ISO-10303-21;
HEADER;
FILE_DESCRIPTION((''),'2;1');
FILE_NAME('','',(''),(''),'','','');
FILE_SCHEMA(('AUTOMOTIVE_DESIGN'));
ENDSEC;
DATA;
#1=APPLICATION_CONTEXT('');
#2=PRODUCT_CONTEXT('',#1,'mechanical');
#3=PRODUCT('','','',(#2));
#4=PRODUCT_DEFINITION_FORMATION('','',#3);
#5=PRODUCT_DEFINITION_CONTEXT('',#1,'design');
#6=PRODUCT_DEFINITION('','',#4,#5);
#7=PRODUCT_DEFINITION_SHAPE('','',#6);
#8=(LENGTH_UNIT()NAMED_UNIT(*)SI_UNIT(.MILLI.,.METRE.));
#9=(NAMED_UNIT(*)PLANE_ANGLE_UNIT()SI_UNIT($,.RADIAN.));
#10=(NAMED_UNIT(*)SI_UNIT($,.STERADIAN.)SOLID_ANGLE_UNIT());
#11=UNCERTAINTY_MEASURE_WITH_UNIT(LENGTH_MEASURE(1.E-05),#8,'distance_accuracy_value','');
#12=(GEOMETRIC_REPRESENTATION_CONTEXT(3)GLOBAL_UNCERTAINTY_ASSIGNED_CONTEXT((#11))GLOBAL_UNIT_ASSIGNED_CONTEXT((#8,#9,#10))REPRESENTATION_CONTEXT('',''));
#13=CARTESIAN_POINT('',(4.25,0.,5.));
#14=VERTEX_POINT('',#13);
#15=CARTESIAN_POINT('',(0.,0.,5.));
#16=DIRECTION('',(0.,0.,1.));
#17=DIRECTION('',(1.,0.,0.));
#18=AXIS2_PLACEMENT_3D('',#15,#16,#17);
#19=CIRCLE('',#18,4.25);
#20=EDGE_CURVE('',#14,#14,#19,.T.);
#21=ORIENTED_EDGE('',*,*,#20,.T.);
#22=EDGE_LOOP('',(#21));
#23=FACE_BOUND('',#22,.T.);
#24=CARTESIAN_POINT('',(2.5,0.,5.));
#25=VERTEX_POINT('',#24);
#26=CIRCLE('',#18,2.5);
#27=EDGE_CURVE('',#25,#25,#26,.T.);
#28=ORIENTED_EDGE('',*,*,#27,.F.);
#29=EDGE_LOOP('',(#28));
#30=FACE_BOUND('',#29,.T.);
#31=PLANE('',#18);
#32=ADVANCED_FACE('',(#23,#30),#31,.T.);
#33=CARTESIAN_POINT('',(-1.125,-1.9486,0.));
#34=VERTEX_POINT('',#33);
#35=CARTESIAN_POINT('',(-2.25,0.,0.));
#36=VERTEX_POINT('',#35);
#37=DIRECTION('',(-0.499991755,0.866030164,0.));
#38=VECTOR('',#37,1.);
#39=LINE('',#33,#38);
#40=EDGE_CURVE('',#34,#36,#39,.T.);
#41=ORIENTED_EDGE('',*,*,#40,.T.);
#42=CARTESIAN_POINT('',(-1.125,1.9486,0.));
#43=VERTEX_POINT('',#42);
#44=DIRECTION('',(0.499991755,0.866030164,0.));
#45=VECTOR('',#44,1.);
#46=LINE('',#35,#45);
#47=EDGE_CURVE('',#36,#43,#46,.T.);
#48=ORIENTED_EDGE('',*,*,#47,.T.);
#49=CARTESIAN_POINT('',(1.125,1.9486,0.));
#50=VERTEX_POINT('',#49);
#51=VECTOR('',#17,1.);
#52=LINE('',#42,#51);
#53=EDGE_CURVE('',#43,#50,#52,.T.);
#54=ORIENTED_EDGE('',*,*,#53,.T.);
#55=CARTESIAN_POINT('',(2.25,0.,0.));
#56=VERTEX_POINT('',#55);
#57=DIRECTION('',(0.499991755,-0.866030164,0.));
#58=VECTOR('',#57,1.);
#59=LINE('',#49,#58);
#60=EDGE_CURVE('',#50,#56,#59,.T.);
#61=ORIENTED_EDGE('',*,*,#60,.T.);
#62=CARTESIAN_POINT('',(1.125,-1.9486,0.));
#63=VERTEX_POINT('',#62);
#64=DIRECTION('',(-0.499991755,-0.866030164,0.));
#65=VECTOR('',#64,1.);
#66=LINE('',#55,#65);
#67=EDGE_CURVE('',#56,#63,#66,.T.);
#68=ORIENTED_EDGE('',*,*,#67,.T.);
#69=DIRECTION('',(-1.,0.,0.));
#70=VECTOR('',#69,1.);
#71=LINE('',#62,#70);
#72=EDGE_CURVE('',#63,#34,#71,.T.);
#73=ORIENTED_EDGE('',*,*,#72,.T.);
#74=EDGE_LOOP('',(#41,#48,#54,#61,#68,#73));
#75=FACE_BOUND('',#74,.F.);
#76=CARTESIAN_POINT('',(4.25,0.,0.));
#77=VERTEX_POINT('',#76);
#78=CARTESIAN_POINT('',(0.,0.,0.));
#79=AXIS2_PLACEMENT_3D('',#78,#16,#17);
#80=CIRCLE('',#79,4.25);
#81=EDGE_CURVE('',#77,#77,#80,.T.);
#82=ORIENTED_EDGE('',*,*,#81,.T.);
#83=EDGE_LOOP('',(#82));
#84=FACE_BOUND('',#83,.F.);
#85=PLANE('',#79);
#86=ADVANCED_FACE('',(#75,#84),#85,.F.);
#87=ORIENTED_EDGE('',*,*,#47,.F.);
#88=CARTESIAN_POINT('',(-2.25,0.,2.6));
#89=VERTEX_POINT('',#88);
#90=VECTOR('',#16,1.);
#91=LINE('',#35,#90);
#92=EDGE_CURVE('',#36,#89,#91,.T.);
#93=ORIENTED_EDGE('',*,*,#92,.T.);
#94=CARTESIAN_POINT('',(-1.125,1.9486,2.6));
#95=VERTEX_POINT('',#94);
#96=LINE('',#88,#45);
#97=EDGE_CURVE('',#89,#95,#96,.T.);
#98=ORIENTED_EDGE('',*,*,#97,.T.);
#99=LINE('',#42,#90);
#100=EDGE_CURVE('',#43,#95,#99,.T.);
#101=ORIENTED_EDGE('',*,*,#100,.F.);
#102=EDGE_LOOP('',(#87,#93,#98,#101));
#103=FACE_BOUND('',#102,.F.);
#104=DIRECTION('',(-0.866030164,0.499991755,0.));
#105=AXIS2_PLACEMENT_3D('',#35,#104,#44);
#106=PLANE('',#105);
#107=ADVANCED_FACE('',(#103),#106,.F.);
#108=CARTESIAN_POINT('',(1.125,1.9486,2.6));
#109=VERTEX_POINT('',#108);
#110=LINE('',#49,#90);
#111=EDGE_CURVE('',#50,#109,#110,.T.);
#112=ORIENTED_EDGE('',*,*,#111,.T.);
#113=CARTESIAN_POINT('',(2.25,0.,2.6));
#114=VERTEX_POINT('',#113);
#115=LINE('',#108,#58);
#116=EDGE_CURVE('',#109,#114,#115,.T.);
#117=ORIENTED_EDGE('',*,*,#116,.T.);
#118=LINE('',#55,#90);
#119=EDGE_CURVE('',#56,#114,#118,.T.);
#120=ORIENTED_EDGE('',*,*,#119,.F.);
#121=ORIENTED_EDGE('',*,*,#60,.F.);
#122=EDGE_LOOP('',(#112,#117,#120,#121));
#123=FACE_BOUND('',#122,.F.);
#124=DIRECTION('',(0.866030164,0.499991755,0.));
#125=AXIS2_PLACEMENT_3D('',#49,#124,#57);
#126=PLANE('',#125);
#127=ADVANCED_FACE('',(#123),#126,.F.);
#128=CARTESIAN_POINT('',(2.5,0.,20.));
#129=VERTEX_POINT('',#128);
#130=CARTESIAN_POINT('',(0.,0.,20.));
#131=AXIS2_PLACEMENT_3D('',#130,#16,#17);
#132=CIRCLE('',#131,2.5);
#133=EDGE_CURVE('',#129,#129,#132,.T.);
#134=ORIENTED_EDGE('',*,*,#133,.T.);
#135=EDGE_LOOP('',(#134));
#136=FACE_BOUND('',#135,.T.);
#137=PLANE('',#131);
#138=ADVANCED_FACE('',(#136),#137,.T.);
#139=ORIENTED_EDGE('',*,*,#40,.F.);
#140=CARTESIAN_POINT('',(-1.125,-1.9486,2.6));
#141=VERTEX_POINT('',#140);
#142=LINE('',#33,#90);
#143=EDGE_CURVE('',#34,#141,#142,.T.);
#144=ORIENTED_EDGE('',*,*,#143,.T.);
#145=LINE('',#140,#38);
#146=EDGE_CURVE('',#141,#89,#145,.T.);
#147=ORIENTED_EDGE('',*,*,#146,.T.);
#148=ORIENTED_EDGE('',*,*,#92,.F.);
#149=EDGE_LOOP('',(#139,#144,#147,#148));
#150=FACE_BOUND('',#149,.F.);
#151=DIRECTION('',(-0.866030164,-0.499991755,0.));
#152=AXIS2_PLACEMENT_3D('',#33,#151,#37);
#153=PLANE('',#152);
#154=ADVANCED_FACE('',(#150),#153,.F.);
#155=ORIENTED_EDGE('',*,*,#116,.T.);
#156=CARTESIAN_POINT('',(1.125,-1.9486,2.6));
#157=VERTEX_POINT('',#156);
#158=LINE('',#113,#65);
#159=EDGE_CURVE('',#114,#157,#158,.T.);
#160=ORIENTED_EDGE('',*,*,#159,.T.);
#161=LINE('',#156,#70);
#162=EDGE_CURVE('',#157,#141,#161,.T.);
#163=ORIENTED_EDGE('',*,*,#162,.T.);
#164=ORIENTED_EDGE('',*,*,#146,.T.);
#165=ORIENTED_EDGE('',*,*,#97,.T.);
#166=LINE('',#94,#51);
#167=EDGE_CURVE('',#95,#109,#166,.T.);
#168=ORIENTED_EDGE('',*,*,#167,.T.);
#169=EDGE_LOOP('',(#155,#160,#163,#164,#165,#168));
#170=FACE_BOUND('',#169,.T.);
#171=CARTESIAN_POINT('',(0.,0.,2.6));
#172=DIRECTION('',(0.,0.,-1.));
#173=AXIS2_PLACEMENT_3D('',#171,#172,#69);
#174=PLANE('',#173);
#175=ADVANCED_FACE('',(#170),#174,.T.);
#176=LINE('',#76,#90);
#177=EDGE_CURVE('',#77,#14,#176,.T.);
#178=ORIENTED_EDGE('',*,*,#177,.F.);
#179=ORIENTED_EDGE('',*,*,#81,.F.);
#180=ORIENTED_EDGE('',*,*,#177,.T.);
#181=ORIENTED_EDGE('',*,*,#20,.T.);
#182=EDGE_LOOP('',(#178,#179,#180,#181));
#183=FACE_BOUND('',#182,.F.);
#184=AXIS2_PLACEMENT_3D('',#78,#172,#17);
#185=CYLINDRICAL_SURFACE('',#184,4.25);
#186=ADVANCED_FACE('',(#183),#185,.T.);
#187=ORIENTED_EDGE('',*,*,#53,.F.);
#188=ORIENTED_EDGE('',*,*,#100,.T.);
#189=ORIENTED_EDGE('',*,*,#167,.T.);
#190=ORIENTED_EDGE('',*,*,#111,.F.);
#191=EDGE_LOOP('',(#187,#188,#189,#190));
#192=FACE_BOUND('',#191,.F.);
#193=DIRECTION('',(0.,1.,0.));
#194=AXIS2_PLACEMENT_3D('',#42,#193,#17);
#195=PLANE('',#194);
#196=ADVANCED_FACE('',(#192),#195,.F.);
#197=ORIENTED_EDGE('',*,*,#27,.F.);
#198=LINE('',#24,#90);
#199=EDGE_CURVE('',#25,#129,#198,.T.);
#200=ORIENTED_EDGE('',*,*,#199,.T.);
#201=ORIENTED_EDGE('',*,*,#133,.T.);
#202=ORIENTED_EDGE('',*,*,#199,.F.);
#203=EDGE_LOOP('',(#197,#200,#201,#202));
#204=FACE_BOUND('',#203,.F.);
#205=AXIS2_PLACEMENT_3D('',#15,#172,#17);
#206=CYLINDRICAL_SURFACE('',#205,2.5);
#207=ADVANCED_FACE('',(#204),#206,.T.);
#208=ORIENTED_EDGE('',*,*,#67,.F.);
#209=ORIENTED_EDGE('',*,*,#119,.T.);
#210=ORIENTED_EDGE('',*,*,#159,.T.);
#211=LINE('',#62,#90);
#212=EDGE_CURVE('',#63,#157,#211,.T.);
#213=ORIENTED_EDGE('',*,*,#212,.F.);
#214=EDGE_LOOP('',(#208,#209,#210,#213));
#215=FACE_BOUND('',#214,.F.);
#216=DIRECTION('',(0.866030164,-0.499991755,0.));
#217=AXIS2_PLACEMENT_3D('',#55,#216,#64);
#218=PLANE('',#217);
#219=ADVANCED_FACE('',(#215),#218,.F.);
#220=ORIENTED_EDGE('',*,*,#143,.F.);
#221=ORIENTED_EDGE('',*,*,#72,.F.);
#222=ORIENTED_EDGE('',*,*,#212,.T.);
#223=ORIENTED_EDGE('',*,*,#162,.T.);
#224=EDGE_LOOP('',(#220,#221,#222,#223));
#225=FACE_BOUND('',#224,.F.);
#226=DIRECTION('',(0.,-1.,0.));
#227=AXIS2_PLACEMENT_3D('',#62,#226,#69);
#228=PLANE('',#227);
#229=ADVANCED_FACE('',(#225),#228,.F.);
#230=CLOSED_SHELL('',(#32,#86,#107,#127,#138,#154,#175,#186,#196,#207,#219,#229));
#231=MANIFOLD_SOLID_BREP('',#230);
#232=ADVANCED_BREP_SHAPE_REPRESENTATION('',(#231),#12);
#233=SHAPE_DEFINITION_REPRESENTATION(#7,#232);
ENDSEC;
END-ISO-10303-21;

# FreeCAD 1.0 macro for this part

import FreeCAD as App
import Part
import Sketcher
from FreeCAD import Vector
Q = App.Units.Quantity


def add_polygon(sketch, points):
    """Adds a closed chain of lines whose ends are joined by coincident constraints."""
    first, n = sketch.GeometryCount, len(points)
    for a, b in zip(points, points[1:] + points[:1]):
        sketch.addGeometry(Part.LineSegment(App.Vector(*a, 0), App.Vector(*b, 0)), False)
    for i in range(n):
        sketch.addConstraint(Sketcher.Constraint("Coincident", first + i, 2, first + (i + 1) % n, 1))

doc = App.newDocument("Part")
params = doc.addObject("Spreadsheet::Sheet", "Params")
for row, (alias, value) in enumerate([
    ("sketch1_diameter", "8.5 mm"),
    ("pad1_length", "5 mm"),
    ("sketch2_diameter", "5 mm"),
    ("pad2_length", "15 mm"),
    ("sketch3_width", "2.25 mm"),
    ("pocket1_length", "2.6 mm"),
], start=1):
    params.set(f"A{row}", alias)
    params.set(f"B{row}", "=" + value)
    params.setAlias(f"B{row}", alias)

body = doc.addObject("PartDesign::Body", "Body")

sketch1 = body.newObject("Sketcher::SketchObject", "Sketch")
sketch1.AttachmentSupport = (doc.getObject("XY_Plane"), [""])
sketch1.MapMode = "FlatFace"
sketch1.addGeometry(Part.Circle(Vector(0, 0, 0), Vector(0, 0, 1), 4.25), False)
sketch1.addConstraint([
    Sketcher.Constraint("Coincident", 0, 3, -1, 1),
    Sketcher.Constraint("Diameter", 0, 8.5),
])
sketch1.setExpression("Constraints[1]", "Params.sketch1_diameter")
pad1 = body.newObject("PartDesign::Pad", "Pad")
pad1.Profile = sketch1
pad1.setExpression("Length", "Params.pad1_length")

sketch2 = body.newObject("Sketcher::SketchObject", "Sketch001")
sketch2.AttachmentSupport = (doc.getObject("XY_Plane"), [""])
sketch2.MapMode = "FlatFace"
sketch2.AttachmentOffset = App.Placement(Vector(0, 0, 5), App.Rotation())
sketch2.addGeometry(Part.Circle(Vector(0, 0, 0), Vector(0, 0, 1), 2.5), False)
sketch2.addConstraint([
    Sketcher.Constraint("Coincident", 0, 3, -1, 1),
    Sketcher.Constraint("Diameter", 0, 5.0),
])
sketch2.setExpression("Constraints[1]", "Params.sketch2_diameter")
pad2 = body.newObject("PartDesign::Pad", "Pad001")
pad2.Profile = sketch2
pad2.setExpression("Length", "Params.pad2_length")

sketch3 = body.newObject("Sketcher::SketchObject", "Sketch002")
sketch3.AttachmentSupport = (doc.getObject("XY_Plane"), [""])
sketch3.MapMode = "FlatFace"
add_polygon(sketch3, [(-1.125, -1.9486), (-2.25, 0), (-1.125, 1.9486), (1.125, 1.9486), (2.25, 0), (1.125, -1.9486)])
sketch3.addConstraint([
    Sketcher.Constraint("Horizontal", 2),
    Sketcher.Constraint("Horizontal", 5),
    Sketcher.Constraint("Symmetric", 0, 2, 3, 2, -1, 1),
    Sketcher.Constraint("Symmetric", 1, 2, 4, 2, -1, 1),
    Sketcher.Constraint("PointOnObject", 0, 2, -1),
    Sketcher.Constraint("Parallel", 0, 3),
    Sketcher.Constraint("Vertical", 2, 2, 4, 2),
    Sketcher.Constraint("Angle", 0, Q("119.9995 deg")),
    Sketcher.Constraint("DistanceX", 2, 1, 2, 2, 2.25),
    Sketcher.Constraint("DistanceX", 0, 2, 3, 2, 4.5),
])
sketch3.setExpression("Constraints[14]", "Params.sketch3_width")
pocket1 = body.newObject("PartDesign::Pocket", "Pocket")
pocket1.Profile = sketch3
pocket1.setExpression("Length", "Params.pocket1_length")
pocket1.Reversed = True

doc.recompute()
